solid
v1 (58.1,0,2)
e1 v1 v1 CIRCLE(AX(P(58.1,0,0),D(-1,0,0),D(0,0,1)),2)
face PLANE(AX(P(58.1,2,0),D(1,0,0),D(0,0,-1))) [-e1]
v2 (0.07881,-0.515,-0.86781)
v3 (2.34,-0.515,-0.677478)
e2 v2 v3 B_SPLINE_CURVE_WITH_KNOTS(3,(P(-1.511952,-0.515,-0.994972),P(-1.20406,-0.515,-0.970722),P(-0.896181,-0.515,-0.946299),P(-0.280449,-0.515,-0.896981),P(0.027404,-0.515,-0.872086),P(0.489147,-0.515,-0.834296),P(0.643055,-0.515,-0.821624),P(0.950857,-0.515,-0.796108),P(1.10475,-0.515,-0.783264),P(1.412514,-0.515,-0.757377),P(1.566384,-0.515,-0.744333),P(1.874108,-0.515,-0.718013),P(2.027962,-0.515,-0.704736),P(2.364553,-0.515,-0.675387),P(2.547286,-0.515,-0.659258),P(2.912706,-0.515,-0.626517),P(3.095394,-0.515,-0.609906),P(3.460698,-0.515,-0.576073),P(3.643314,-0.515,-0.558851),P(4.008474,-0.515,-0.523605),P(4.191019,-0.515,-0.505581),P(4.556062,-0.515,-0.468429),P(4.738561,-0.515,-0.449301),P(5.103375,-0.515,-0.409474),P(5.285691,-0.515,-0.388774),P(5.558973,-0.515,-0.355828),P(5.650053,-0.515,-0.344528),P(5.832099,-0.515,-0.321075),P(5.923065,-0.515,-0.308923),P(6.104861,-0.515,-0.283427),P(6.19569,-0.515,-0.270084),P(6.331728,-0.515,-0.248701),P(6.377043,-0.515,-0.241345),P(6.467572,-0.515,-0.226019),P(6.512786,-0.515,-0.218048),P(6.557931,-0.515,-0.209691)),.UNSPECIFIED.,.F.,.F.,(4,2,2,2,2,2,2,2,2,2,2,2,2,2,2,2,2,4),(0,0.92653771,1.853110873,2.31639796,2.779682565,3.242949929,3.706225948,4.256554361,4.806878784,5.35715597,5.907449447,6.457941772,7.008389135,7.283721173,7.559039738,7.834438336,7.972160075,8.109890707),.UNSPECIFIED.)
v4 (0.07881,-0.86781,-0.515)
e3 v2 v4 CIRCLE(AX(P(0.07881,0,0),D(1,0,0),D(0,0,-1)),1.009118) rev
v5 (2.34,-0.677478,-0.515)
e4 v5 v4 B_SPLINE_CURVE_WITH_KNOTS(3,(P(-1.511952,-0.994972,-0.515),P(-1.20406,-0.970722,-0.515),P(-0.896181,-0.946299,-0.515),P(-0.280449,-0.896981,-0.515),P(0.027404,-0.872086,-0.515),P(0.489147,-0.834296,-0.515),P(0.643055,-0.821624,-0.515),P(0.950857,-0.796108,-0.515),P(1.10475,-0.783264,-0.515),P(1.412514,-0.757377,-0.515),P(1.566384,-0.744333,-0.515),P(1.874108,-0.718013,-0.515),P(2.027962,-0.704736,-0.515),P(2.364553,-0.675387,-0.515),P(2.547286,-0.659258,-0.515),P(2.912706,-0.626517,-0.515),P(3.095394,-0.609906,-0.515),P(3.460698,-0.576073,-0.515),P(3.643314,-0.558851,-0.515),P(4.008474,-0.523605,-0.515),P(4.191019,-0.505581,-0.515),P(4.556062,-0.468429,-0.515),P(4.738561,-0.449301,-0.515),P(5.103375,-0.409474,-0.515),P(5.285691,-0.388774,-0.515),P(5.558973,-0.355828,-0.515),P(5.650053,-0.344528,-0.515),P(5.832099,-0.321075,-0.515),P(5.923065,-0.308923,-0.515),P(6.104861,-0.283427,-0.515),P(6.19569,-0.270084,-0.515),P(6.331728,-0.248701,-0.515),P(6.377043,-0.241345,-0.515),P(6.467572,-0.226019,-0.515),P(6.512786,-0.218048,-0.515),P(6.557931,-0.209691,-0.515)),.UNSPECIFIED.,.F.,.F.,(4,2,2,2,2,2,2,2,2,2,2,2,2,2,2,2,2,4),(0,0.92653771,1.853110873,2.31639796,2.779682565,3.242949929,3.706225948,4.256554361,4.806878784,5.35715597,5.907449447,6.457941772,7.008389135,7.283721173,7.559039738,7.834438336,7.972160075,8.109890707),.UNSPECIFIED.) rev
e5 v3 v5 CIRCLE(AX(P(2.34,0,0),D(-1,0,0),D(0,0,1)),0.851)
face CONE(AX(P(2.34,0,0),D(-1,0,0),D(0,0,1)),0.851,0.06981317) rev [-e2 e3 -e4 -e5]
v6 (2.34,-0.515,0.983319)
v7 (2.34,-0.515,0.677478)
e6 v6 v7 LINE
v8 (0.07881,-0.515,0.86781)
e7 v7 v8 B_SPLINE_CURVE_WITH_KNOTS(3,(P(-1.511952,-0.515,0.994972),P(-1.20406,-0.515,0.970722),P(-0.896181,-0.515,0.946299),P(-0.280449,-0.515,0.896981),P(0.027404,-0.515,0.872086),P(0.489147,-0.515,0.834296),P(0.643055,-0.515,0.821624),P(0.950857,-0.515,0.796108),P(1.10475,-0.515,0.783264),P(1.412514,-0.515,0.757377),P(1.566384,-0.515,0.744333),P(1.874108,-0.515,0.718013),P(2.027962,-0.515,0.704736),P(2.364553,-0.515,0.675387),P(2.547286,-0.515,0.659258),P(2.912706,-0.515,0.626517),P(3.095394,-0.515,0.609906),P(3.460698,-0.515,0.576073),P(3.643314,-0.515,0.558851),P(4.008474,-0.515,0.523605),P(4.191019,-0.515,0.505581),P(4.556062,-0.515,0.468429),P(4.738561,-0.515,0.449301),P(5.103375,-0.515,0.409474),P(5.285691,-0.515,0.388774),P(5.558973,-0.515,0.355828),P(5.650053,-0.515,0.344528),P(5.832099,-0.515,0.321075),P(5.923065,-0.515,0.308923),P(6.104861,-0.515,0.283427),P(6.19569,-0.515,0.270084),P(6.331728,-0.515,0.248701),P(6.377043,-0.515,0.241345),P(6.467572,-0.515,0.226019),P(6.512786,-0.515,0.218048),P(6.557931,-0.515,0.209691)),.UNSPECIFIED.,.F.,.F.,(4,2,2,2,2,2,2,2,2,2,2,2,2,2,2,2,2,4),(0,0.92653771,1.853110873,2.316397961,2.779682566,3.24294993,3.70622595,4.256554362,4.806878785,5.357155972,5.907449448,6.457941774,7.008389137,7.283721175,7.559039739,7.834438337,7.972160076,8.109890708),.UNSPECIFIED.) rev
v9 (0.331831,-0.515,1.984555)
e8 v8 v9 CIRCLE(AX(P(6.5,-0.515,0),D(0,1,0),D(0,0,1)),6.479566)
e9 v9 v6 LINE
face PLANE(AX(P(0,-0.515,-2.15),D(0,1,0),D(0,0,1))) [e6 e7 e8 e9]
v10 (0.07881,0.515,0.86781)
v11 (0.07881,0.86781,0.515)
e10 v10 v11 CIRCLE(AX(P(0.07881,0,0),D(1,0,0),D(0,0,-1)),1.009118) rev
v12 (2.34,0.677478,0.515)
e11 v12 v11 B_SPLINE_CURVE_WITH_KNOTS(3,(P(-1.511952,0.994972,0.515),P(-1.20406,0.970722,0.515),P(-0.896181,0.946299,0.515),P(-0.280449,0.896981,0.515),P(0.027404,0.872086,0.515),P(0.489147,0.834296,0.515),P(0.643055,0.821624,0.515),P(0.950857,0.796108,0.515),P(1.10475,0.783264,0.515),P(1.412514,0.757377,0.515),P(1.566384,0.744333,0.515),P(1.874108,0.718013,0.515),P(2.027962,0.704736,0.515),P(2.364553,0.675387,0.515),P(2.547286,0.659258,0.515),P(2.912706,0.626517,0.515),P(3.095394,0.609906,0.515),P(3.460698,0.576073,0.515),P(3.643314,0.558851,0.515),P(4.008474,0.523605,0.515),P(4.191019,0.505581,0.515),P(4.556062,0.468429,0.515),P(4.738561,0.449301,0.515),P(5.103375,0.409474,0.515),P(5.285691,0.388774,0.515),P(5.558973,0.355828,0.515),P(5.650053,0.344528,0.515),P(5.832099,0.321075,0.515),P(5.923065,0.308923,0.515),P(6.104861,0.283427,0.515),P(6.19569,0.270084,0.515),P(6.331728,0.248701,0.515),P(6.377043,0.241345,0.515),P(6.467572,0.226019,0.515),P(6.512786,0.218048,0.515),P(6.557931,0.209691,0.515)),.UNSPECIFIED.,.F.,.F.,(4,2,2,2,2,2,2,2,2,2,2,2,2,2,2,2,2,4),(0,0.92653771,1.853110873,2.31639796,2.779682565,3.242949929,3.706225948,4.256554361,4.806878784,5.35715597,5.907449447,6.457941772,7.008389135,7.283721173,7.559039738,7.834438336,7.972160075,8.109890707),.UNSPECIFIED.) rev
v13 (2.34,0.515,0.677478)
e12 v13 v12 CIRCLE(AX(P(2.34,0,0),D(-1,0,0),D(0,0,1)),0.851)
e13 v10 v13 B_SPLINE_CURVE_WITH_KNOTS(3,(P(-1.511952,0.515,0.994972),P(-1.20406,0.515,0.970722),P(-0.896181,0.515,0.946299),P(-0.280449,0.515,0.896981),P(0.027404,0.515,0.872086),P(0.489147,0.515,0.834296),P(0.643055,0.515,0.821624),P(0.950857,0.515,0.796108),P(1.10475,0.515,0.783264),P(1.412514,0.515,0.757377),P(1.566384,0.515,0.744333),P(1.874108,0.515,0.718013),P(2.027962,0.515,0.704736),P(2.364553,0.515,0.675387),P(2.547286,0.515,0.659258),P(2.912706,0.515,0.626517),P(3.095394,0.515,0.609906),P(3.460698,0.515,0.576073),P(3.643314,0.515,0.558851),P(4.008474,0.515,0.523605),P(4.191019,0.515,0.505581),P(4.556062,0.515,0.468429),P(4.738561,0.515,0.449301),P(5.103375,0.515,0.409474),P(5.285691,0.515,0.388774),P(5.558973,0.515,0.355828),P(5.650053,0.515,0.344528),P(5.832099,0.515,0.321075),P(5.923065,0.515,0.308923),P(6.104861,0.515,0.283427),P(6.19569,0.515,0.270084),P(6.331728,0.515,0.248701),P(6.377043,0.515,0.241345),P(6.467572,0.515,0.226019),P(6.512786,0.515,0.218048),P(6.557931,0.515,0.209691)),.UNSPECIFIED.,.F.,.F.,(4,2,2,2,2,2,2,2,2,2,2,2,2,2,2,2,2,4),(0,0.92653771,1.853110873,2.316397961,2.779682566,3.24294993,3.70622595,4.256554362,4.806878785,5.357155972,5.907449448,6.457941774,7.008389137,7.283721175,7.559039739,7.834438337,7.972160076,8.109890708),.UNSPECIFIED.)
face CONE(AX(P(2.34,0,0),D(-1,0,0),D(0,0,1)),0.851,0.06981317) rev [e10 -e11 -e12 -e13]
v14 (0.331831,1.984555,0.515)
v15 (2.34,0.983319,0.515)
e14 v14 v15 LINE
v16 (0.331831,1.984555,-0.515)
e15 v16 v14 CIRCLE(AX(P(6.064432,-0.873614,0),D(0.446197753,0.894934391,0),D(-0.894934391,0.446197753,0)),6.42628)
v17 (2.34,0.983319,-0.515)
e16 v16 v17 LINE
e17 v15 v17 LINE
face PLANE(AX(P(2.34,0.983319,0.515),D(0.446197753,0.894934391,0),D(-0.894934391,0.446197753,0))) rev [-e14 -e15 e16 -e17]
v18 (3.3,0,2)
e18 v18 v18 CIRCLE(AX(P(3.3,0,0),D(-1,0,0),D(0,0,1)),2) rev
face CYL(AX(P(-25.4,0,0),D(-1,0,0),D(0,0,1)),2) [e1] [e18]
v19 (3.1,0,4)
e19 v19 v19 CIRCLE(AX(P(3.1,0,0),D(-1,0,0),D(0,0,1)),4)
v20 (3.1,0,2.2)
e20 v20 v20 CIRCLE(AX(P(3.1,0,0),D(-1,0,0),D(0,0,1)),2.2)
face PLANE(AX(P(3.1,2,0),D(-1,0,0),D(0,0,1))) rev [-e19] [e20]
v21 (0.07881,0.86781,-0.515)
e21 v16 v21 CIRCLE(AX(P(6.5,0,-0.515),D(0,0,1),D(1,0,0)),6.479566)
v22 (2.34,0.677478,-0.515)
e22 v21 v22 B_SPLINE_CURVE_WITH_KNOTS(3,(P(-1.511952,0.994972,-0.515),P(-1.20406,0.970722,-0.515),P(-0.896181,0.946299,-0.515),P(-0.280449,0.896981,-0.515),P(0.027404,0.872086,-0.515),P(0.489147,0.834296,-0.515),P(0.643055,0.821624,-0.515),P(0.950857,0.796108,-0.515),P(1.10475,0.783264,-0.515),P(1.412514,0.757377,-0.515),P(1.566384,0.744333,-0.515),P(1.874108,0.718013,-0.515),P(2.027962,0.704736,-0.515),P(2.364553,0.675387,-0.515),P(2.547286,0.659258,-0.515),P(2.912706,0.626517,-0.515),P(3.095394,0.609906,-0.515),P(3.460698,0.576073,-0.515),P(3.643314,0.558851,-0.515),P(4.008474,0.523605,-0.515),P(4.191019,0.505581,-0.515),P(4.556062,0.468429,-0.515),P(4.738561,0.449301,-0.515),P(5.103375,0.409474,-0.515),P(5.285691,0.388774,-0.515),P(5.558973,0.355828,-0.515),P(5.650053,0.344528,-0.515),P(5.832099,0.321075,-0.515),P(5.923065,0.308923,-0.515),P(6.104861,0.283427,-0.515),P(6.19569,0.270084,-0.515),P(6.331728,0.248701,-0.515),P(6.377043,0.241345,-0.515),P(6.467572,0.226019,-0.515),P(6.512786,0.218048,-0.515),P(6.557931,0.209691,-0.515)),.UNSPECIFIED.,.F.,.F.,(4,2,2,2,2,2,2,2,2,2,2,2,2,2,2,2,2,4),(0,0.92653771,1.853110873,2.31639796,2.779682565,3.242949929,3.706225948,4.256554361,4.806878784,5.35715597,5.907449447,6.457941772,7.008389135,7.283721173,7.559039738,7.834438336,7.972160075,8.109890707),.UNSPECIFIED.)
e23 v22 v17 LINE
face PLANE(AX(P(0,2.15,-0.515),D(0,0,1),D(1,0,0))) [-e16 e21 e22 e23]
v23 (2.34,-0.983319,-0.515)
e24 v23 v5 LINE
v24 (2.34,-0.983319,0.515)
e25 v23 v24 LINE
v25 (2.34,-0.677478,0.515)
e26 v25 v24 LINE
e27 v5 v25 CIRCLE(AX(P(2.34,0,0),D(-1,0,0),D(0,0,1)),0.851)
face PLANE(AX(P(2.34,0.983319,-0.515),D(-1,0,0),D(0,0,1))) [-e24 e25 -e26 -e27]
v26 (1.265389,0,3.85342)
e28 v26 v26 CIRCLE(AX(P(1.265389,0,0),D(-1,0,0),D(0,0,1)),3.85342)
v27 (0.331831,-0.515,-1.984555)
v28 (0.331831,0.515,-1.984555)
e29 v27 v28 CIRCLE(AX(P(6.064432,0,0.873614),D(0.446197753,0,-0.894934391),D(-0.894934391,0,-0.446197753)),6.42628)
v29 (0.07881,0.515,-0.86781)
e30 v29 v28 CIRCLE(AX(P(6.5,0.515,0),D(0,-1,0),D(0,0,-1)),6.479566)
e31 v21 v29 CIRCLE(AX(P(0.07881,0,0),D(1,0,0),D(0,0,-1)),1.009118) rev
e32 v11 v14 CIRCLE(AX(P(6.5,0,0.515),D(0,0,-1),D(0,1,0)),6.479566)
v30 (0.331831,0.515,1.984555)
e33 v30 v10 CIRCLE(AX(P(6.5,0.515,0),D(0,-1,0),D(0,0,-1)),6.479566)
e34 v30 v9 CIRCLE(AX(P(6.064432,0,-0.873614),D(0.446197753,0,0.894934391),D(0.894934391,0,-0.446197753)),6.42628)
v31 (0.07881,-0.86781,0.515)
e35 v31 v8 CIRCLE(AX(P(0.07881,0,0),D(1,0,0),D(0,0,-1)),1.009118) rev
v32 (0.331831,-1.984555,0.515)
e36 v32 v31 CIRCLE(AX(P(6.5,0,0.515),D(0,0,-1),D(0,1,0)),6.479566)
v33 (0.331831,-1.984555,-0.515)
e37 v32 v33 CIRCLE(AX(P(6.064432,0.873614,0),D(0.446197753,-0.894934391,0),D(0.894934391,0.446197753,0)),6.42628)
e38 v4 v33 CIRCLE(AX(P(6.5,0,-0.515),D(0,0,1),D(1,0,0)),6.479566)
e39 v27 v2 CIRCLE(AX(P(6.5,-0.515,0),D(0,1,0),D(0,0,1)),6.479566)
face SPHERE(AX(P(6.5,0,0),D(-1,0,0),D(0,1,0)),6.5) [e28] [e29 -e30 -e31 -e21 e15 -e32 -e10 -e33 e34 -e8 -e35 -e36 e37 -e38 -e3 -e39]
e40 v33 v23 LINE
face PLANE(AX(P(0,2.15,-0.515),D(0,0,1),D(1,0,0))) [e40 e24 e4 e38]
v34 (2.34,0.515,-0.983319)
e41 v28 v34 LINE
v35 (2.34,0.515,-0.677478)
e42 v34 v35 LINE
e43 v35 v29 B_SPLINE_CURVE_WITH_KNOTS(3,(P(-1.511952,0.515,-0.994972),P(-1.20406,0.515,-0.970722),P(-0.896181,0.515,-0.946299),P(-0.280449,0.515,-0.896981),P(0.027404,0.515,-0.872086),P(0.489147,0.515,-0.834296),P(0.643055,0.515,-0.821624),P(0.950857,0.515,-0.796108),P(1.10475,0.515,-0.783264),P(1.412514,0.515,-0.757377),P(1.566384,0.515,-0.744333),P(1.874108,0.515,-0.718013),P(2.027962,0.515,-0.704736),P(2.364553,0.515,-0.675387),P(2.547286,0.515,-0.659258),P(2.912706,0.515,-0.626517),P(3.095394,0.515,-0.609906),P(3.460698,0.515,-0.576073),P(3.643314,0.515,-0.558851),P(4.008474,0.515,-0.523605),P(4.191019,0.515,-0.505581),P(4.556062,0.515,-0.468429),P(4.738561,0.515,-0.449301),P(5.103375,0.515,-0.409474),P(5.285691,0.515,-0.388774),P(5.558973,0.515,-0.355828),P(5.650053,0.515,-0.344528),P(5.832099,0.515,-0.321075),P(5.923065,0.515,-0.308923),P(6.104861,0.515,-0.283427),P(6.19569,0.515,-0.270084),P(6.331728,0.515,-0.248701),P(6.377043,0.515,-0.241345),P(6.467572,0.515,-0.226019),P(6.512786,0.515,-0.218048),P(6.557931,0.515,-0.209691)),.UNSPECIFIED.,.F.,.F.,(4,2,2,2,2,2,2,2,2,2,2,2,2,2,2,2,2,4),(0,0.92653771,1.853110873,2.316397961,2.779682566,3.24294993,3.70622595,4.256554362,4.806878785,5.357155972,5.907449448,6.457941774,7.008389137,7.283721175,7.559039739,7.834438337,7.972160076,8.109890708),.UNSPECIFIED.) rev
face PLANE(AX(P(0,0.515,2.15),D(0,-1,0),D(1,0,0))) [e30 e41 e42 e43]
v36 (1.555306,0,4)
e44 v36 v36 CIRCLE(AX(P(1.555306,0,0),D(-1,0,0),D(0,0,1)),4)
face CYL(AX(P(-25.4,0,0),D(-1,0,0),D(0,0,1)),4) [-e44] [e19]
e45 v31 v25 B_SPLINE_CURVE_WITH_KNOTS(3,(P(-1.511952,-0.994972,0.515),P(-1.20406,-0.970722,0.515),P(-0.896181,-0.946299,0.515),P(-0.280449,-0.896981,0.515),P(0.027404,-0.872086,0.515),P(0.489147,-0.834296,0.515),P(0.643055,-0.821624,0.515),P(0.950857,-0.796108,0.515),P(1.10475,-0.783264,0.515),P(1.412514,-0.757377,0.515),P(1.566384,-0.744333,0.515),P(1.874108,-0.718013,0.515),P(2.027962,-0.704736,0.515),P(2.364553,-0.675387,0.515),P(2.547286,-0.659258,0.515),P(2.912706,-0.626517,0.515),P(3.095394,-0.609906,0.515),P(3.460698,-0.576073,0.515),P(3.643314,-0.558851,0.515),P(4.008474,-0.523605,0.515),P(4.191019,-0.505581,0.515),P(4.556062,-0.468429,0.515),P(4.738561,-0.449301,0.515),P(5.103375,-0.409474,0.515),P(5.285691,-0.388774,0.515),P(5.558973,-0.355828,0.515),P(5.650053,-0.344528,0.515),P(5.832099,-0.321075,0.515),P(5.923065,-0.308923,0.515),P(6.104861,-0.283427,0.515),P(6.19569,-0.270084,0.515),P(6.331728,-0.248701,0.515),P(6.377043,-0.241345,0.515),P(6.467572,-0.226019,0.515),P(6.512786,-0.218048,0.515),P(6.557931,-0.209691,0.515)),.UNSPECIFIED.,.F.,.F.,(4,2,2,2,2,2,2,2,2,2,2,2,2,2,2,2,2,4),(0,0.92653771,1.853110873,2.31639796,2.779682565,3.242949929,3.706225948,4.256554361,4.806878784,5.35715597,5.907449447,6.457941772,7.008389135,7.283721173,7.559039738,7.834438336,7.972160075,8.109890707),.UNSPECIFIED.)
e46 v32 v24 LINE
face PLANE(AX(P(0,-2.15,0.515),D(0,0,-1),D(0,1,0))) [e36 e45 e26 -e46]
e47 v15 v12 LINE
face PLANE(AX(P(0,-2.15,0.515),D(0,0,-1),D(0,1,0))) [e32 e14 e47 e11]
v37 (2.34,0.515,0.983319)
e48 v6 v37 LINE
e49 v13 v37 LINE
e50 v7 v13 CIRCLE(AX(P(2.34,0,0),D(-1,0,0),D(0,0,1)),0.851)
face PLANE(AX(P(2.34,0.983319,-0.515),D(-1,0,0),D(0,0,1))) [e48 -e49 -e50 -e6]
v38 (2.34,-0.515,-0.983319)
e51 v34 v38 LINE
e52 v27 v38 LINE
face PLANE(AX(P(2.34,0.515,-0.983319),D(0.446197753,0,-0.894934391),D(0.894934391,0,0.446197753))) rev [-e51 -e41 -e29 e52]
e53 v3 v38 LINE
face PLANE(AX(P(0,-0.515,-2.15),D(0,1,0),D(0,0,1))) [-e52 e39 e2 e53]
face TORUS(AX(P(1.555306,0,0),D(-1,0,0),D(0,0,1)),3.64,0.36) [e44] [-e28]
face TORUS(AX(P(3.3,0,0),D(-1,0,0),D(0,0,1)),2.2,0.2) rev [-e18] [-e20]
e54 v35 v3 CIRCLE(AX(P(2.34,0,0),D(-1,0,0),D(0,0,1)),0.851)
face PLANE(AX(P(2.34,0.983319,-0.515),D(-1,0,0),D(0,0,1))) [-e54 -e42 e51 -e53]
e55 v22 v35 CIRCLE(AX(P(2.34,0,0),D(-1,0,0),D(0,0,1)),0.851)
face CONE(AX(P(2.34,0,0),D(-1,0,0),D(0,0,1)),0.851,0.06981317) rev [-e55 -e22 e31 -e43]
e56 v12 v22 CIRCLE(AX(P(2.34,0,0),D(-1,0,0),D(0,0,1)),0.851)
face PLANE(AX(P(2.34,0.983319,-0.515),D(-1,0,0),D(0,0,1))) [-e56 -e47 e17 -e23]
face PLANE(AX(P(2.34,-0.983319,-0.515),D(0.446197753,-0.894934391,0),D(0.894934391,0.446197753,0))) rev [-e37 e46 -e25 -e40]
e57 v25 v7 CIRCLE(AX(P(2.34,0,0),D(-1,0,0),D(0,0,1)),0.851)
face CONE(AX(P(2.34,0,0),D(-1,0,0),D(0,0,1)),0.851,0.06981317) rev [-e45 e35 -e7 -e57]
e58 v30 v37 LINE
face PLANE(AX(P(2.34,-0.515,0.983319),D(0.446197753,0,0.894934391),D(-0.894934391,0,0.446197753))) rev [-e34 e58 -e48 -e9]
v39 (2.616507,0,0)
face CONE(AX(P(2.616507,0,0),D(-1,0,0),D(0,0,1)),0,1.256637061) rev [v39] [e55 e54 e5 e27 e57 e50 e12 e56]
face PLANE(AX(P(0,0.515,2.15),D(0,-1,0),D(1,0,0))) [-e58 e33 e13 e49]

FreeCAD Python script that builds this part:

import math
import FreeCAD as App
import Part
import Sketcher
Q = App.Units.Quantity


def edges_at(feature, points):
    """Names of the edges that pass closest to the given points."""
    edges = feature.Shape.Edges
    near = lambda p: min(range(len(edges)), key=lambda i: edges[i].distToShape(Part.Vertex(*p))[0])
    return sorted({f"Edge{near(p) + 1}" for p in points})

doc = App.newDocument("Part")
body = doc.addObject("PartDesign::Body", "Body")

# Sketch on XY plane
sketch1 = doc.addObject("Sketcher::SketchObject", "Sketch")
body.addObject(sketch1)
sketch1.AttachmentSupport = (doc.XY_Plane, [""])
sketch1.MapMode = "FlatFace"
sketch1.addGeometry([
    Part.LineSegment(App.Vector(3.1, 2, 0), App.Vector(3.1, 4, 0)),  # 0
    Part.LineSegment(App.Vector(3.1, 4, 0), App.Vector(1.555306, 4, 0)),  # 1
    Part.ArcOfCircle(Part.Circle(App.Vector(1.555306, 3.64, 0), App.Vector(0, 0, 1), 0.36), math.radians(90), math.radians(143.641633)),  # 2
    Part.ArcOfCircle(Part.Circle(App.Vector(6.5, 0, 0), App.Vector(0, 0, 1), 6.5), math.radians(143.641632), math.radians(180)),  # 3
    Part.LineSegment(App.Vector(0, 0, 0), App.Vector(58.1, 0, 0)),  # 4
    Part.LineSegment(App.Vector(58.1, 0, 0), App.Vector(58.1, 2, 0)),  # 5
    Part.LineSegment(App.Vector(58.1, 2, 0), App.Vector(3.1, 2, 0)),  # 6
], False)
sketch1.addConstraint([
    Sketcher.Constraint("Coincident", 0, 2, 1, 1),
    Sketcher.Constraint("Tangent", 1, 2, 2, 1),
    Sketcher.Constraint("Tangent", 2, 2, 3, 1),
    Sketcher.Constraint("Coincident", 3, 2, 4, 1),
    Sketcher.Constraint("Coincident", 4, 2, 5, 1),
    Sketcher.Constraint("Coincident", 5, 2, 6, 1),
    Sketcher.Constraint("Coincident", 6, 2, 0, 1),
    Sketcher.Constraint("Vertical", 0),
    Sketcher.Constraint("Horizontal", 1),
    Sketcher.Constraint("Horizontal", 4),
    Sketcher.Constraint("Vertical", 5),
    Sketcher.Constraint("Horizontal", 6),
    Sketcher.Constraint("Coincident", 3, 2, -1, 1),
    Sketcher.Constraint("PointOnObject", 3, 3, -1),
    Sketcher.Constraint("Equal", 0, 5),
    Sketcher.Constraint("Radius", 3, 6.5),
    Sketcher.Constraint("DistanceX", 6, 2, 6, 1, 55.0),
    Sketcher.Constraint("DistanceY", 0, 1, 0, 2, 2.0),
    Sketcher.Constraint("Radius", 2, 0.36),
    Sketcher.Constraint("DistanceX", 4, 1, 4, 2, 58.1),
])
revolution = doc.addObject("PartDesign::Revolution", "Revolution")
body.addObject(revolution)
revolution.Profile = sketch1
revolution.ReferenceAxis = (sketch1, ["H_Axis"])
revolution.Angle = 360
doc.recompute()

fillet = doc.addObject("PartDesign::Fillet", "Fillet")
body.addObject(fillet)
fillet.Base = (revolution, edges_at(revolution, [(3.1, -2, 0)]))
fillet.Radius = 0.2

# Sketch on YZ plane
sketch2 = doc.addObject("Sketcher::SketchObject", "Sketch001")
body.addObject(sketch2)
sketch2.AttachmentSupport = (doc.YZ_Plane, [""])
sketch2.MapMode = "FlatFace"
sketch2.addGeometry([
    Part.LineSegment(App.Vector(2.15, 0.515, 0), App.Vector(-2.15, 0.515, 0)),
    Part.LineSegment(App.Vector(-2.15, 0.515, 0), App.Vector(-2.15, -0.515, 0)),
    Part.LineSegment(App.Vector(-2.15, -0.515, 0), App.Vector(2.15, -0.515, 0)),
    Part.LineSegment(App.Vector(2.15, -0.515, 0), App.Vector(2.15, 0.515, 0)),
], False)
sketch2.addConstraint([
    Sketcher.Constraint("Coincident", 0, 2, 1, 1),
    Sketcher.Constraint("Coincident", 1, 2, 2, 1),
    Sketcher.Constraint("Coincident", 2, 2, 3, 1),
    Sketcher.Constraint("Coincident", 3, 2, 0, 1),
    Sketcher.Constraint("Horizontal", 0),
    Sketcher.Constraint("Vertical", 1),
    Sketcher.Constraint("Horizontal", 2),
    Sketcher.Constraint("Vertical", 3),
    Sketcher.Constraint("Symmetric", 0, 2, 2, 2, -1, 1),
    Sketcher.Constraint("DistanceX", 0, 2, 0, 1, 4.3),
    Sketcher.Constraint("DistanceY", 1, 2, 1, 1, 1.03),
])

# Sketch on YZ plane
sketch3 = doc.addObject("Sketcher::SketchObject", "Sketch002")
body.addObject(sketch3)
sketch3.AttachmentSupport = (doc.YZ_Plane, [""])
sketch3.MapMode = "FlatFace"
sketch3.AttachmentOffset = App.Placement(App.Vector(0, 0, 2.34), App.Rotation())
sketch3.addGeometry([
    Part.LineSegment(App.Vector(0.983319, 0.515, 0), App.Vector(-0.983319, 0.515, 0)),
    Part.LineSegment(App.Vector(-0.983319, 0.515, 0), App.Vector(-0.983319, -0.515, 0)),
    Part.LineSegment(App.Vector(-0.983319, -0.515, 0), App.Vector(0.983319, -0.515, 0)),
    Part.LineSegment(App.Vector(0.983319, -0.515, 0), App.Vector(0.983319, 0.515, 0)),
], False)
sketch3.addConstraint([
    Sketcher.Constraint("Coincident", 0, 2, 1, 1),
    Sketcher.Constraint("Coincident", 1, 2, 2, 1),
    Sketcher.Constraint("Coincident", 2, 2, 3, 1),
    Sketcher.Constraint("Coincident", 3, 2, 0, 1),
    Sketcher.Constraint("Horizontal", 0),
    Sketcher.Constraint("Vertical", 1),
    Sketcher.Constraint("Horizontal", 2),
    Sketcher.Constraint("Vertical", 3),
    Sketcher.Constraint("Symmetric", 0, 2, 2, 2, -1, 1),
    Sketcher.Constraint("DistanceY", 1, 2, 1, 1, 1.03),
    Sketcher.Constraint("DistanceX", 0, 2, 0, 1, 1.966638),
])

subtractiveloft = doc.addObject("PartDesign::SubtractiveLoft", "SubtractiveLoft")
body.addObject(subtractiveloft)
subtractiveloft.Profile = sketch2
subtractiveloft.Sections = [sketch3]
doc.recompute()

polarpattern = doc.addObject("PartDesign::PolarPattern", "PolarPattern")
body.addObject(polarpattern)
polarpattern.Originals = [subtractiveloft]
polarpattern.Axis = (doc.X_Axis, [""])
polarpattern.Angle = 90
polarpattern.Occurrences = 2
body.Tip = polarpattern

# Sketch on XY plane
sketch4 = doc.addObject("Sketcher::SketchObject", "Sketch003")
body.addObject(sketch4)
sketch4.AttachmentSupport = (doc.XY_Plane, [""])
sketch4.MapMode = "FlatFace"
sketch4.addGeometry([
    Part.LineSegment(App.Vector(0, 1.014629, 0), App.Vector(0, 0, 0)),
    Part.LineSegment(App.Vector(0, 0, 0), App.Vector(2.616507, 0, 0)),
    Part.LineSegment(App.Vector(2.616507, 0, 0), App.Vector(2.34, 0.851, 0)),
    Part.LineSegment(App.Vector(2.34, 0.851, 0), App.Vector(0, 1.014629, 0)),
], False)
sketch4.addConstraint([
    Sketcher.Constraint("Coincident", 0, 2, 1, 1),
    Sketcher.Constraint("Coincident", 1, 2, 2, 1),
    Sketcher.Constraint("Coincident", 2, 2, 3, 1),
    Sketcher.Constraint("Coincident", 3, 2, 0, 1),
    Sketcher.Constraint("Vertical", 0),
    Sketcher.Constraint("Horizontal", 1),
    Sketcher.Constraint("Coincident", 0, 2, -1, 1),
    Sketcher.Constraint("Angle", 2, Q("108 deg")),
    Sketcher.Constraint("Angle", 3, Q("176 deg")),
    Sketcher.Constraint("DistanceX", -1, 1, 2, 2, 2.34),
    Sketcher.Constraint("DistanceY", -1, 1, 2, 2, 0.851),
])
groove = doc.addObject("PartDesign::Groove", "Groove")
body.addObject(groove)
groove.Profile = sketch4
groove.ReferenceAxis = (sketch4, ["H_Axis"])
groove.Angle = 360

doc.recompute()
